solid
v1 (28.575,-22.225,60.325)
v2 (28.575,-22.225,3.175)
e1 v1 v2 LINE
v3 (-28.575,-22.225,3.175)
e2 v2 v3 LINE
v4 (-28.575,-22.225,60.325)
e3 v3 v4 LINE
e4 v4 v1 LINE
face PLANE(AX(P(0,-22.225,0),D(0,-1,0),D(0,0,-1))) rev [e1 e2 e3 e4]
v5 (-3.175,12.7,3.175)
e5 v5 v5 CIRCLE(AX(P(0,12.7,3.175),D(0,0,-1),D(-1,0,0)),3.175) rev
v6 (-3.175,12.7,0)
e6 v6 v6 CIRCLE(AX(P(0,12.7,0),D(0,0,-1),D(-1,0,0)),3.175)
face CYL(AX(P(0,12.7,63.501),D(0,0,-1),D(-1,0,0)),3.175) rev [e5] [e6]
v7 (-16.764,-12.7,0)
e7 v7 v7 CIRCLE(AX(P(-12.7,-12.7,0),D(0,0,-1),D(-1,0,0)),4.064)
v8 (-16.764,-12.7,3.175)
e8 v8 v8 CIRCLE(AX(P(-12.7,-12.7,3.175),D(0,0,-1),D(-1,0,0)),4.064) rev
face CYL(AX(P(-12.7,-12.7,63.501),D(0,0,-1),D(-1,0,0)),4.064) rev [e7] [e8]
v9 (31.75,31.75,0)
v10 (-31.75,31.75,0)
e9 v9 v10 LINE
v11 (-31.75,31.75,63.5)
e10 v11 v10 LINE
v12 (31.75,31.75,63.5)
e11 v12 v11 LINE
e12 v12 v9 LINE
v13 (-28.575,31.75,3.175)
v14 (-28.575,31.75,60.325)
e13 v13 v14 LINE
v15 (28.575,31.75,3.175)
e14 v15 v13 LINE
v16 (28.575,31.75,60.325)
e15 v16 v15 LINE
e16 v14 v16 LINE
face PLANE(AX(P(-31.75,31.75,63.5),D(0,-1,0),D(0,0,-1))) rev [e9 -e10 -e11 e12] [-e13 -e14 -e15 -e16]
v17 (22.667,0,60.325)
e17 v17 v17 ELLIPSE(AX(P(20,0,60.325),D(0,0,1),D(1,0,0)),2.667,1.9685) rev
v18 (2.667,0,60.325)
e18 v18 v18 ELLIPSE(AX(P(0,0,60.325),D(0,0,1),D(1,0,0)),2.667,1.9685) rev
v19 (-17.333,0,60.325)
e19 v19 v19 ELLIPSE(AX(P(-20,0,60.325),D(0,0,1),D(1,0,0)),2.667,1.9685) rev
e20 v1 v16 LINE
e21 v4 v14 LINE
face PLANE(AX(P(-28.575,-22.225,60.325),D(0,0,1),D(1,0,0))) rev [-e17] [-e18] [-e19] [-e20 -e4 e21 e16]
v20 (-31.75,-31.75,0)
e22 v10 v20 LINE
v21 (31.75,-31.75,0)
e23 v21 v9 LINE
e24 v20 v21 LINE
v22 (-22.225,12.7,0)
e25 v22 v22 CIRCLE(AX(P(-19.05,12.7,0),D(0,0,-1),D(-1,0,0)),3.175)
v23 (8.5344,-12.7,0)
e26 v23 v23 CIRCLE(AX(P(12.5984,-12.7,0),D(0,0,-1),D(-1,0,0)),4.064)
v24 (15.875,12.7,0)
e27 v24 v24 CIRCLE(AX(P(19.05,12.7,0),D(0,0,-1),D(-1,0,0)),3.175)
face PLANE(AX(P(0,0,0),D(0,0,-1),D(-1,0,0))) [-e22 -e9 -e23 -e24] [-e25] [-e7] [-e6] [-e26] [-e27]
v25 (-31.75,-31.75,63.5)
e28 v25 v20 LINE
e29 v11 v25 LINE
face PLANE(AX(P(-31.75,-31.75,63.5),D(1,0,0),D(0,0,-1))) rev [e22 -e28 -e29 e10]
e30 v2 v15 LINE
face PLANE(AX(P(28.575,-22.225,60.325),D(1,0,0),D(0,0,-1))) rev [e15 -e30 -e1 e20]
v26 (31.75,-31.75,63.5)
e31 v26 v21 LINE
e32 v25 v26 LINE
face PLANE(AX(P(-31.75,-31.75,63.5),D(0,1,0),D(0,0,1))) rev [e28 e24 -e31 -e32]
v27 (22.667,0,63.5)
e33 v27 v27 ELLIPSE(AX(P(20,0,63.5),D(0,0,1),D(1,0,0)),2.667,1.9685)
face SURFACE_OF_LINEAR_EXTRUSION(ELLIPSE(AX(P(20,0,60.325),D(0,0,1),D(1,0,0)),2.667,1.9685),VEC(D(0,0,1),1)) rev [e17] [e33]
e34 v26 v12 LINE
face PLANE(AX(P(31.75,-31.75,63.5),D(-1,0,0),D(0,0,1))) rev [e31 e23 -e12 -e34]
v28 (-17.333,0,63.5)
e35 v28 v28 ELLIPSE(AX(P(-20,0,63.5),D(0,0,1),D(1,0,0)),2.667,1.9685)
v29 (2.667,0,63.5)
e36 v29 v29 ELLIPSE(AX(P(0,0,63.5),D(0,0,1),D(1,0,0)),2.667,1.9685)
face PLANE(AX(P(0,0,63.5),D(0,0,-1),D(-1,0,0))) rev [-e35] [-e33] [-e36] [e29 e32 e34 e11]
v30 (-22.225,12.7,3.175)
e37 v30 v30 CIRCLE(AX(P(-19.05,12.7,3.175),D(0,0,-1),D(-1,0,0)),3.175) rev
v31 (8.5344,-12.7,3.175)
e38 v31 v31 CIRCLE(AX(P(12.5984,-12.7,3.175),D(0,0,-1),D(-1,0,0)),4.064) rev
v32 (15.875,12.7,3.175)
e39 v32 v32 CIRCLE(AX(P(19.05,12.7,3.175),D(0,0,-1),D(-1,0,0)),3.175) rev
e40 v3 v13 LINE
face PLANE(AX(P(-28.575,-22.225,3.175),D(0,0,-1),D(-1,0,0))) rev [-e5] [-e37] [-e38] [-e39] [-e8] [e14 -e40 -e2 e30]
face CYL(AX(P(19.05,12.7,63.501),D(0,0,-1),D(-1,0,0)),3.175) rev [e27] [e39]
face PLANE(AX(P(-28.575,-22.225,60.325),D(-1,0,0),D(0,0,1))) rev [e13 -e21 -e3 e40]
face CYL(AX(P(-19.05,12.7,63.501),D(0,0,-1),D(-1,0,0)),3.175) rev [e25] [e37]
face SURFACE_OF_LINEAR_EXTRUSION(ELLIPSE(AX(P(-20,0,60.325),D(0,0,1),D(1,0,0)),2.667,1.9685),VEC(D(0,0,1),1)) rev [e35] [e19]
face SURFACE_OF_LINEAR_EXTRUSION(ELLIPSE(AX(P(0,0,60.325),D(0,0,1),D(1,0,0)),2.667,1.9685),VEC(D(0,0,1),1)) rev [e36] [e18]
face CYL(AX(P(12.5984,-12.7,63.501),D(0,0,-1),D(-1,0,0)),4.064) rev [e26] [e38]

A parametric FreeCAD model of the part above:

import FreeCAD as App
import Part
import Sketcher
from FreeCAD import Vector
Q = App.Units.Quantity

doc = App.newDocument("Part")
body = doc.addObject("PartDesign::Body", "Body")

# Sketch on XY plane
sketch1 = body.newObject("Sketcher::SketchObject", "Sketch")
sketch1.AttachmentSupport = (doc.getObject("XY_Plane"), [""])
sketch1.MapMode = "FlatFace"
sketch1.addGeometry(Part.LineSegment(Vector(-32, 32, 0), Vector(-32, -32, 0)), False)
sketch1.addGeometry(Part.LineSegment(Vector(-32, -32, 0), Vector(32, -32, 0)), False)
sketch1.addGeometry(Part.LineSegment(Vector(32, -32, 0), Vector(32, 32, 0)), False)
sketch1.addGeometry(Part.LineSegment(Vector(32, 32, 0), Vector(-32, 32, 0)), False)
sketch1.addConstraint(Sketcher.Constraint("Coincident", 0, 2, 1, 1))
sketch1.addConstraint(Sketcher.Constraint("Coincident", 1, 2, 2, 1))
sketch1.addConstraint(Sketcher.Constraint("Coincident", 2, 2, 3, 1))
sketch1.addConstraint(Sketcher.Constraint("Coincident", 3, 2, 0, 1))
sketch1.addConstraint(Sketcher.Constraint("Vertical", 0))
sketch1.addConstraint(Sketcher.Constraint("Horizontal", 1))
sketch1.addConstraint(Sketcher.Constraint("Vertical", 2))
sketch1.addConstraint(Sketcher.Constraint("Horizontal", 3))
sketch1.addConstraint(Sketcher.Constraint("Symmetric", 0, 2, 2, 2, -1, 1))
sketch1.addConstraint(Sketcher.Constraint("Equal", 3, 0))
sketch1.addConstraint(Sketcher.Constraint("DistanceX", 1, 1, 1, 2, Q("2.5 in")))
pad1 = body.newObject("PartDesign::Pad", "Pad")
pad1.Profile = sketch1
pad1.Length = Q("2.5 in")

# Sketch on XY plane
sketch2 = body.newObject("Sketcher::SketchObject", "Sketch001")
sketch2.AttachmentSupport = (doc.getObject("XY_Plane"), [""])
sketch2.MapMode = "FlatFace"
sketch2.AttachmentOffset = App.Placement(Vector(0, 0, 2.5 * 25.4), App.Rotation())
sketch2.addGeometry(Part.Ellipse(Vector(2.667, 0, 0), Vector(0, 1.9685, 0), Vector(0, 0, 0)), False)
sketch2.addGeometry(Part.Ellipse(Vector(22.667, 0, 0), Vector(20, 1.9685, 0), Vector(20, 0, 0)), False)
sketch2.addGeometry(Part.Ellipse(Vector(-17.333, 0, 0), Vector(-20, 1.9685, 0), Vector(-20, 0, 0)), False)
sketch2.addConstraint(Sketcher.Constraint("Block", 0))
sketch2.addConstraint(Sketcher.Constraint("Block", 1))
sketch2.addConstraint(Sketcher.Constraint("Block", 2))
pocket1 = body.newObject("PartDesign::Pocket", "Pocket")
pocket1.Profile = sketch2
pocket1.Length = Q("0.125 in")

# Sketch on XZ plane
sketch3 = body.newObject("Sketcher::SketchObject", "Sketch002")
sketch3.AttachmentSupport = (doc.getObject("XZ_Plane"), [""])
sketch3.MapMode = "FlatFace"
sketch3.AttachmentOffset = App.Placement(Vector(0, 0, -1.25 * 25.4), App.Rotation())
sketch3.addGeometry(Part.LineSegment(Vector(-29, 3, 0), Vector(-29, 60, 0)), False)
sketch3.addGeometry(Part.LineSegment(Vector(-29, 60, 0), Vector(29, 60, 0)), False)
sketch3.addGeometry(Part.LineSegment(Vector(29, 60, 0), Vector(29, 3, 0)), False)
sketch3.addGeometry(Part.LineSegment(Vector(29, 3, 0), Vector(-29, 3, 0)), False)
sketch3.addConstraint(Sketcher.Constraint("Coincident", 0, 2, 1, 1))
sketch3.addConstraint(Sketcher.Constraint("Coincident", 1, 2, 2, 1))
sketch3.addConstraint(Sketcher.Constraint("Coincident", 2, 2, 3, 1))
sketch3.addConstraint(Sketcher.Constraint("Coincident", 3, 2, 0, 1))
sketch3.addConstraint(Sketcher.Constraint("Vertical", 0))
sketch3.addConstraint(Sketcher.Constraint("Horizontal", 1))
sketch3.addConstraint(Sketcher.Constraint("Vertical", 2))
sketch3.addConstraint(Sketcher.Constraint("Horizontal", 3))
sketch3.addConstraint(Sketcher.Constraint("Equal", 3, 0))
sketch3.addConstraint(Sketcher.Constraint("DistanceX", 1, 1, 1, 2, Q("2.25 in")))
sketch3.addConstraint(Sketcher.Constraint("DistanceX", 0, 2, -1, 1, Q("1.125 in")))
sketch3.addConstraint(Sketcher.Constraint("DistanceY", -1, 1, 0, 2, Q("2.375 in")))
pocket2 = body.newObject("PartDesign::Pocket", "Pocket001")
pocket2.Profile = sketch3
pocket2.Length = Q("2.125 in")
pocket2.Reversed = True

# Sketch on XY plane
sketch4 = body.newObject("Sketcher::SketchObject", "Sketch003")
sketch4.AttachmentSupport = (doc.getObject("XY_Plane"), [""])
sketch4.MapMode = "FlatFace"
sketch4.addGeometry(Part.Circle(Vector(12.6, -12.7, 0), Vector(0, 0, 1), 4.1), False)
sketch4.addConstraint(Sketcher.Constraint("Diameter", 0, Q("0.32 in")))
sketch4.addConstraint(Sketcher.Constraint("DistanceY", 0, 3, -1, 1, Q("0.5 in")))
sketch4.addConstraint(Sketcher.Constraint("DistanceX", -1, 1, 0, 3, Q("0.496 in")))
pocket3 = body.newObject("PartDesign::Pocket", "Pocket002")
pocket3.Profile = sketch4
pocket3.Type = "UpToFirst"
pocket3.Reversed = True

# Sketch on XY plane
sketch5 = body.newObject("Sketcher::SketchObject", "Sketch004")
sketch5.AttachmentSupport = (doc.getObject("XY_Plane"), [""])
sketch5.MapMode = "FlatFace"
sketch5.addGeometry(Part.Circle(Vector(-12.7, -12.7, 0), Vector(0, 0, 1), 4.1), False)
sketch5.addConstraint(Sketcher.Constraint("Diameter", 0, Q("0.32 in")))
sketch5.addConstraint(Sketcher.Constraint("DistanceX", 0, 3, -1, 1, Q("0.5 in")))
sketch5.addConstraint(Sketcher.Constraint("DistanceY", 0, 3, -1, 1, Q("0.5 in")))
pocket4 = body.newObject("PartDesign::Pocket", "Pocket003")
pocket4.Profile = sketch5
pocket4.Type = "UpToFirst"
pocket4.Reversed = True

# Sketch on XY plane
sketch6 = body.newObject("Sketcher::SketchObject", "Sketch005")
sketch6.AttachmentSupport = (doc.getObject("XY_Plane"), [""])
sketch6.MapMode = "FlatFace"
sketch6.addGeometry(Part.Circle(Vector(19.1, 12.7, 0), Vector(0, 0, 1), 3.2), False)
sketch6.addConstraint(Sketcher.Constraint("Diameter", 0, Q("0.25 in")))
sketch6.addConstraint(Sketcher.Constraint("DistanceY", -1, 1, 0, 3, Q("0.5 in")))
sketch6.addConstraint(Sketcher.Constraint("DistanceX", -1, 1, 0, 3, Q("0.75 in")))
pocket5 = body.newObject("PartDesign::Pocket", "Pocket004")
pocket5.Profile = sketch6
pocket5.Type = "UpToFirst"
pocket5.Reversed = True

# Sketch on XY plane
sketch7 = body.newObject("Sketcher::SketchObject", "Sketch006")
sketch7.AttachmentSupport = (doc.getObject("XY_Plane"), [""])
sketch7.MapMode = "FlatFace"
sketch7.addGeometry(Part.Circle(Vector(0, 12.7, 0), Vector(0, 0, 1), 3.2), False)
sketch7.addConstraint(Sketcher.Constraint("PointOnObject", 0, 3, -2))
sketch7.addConstraint(Sketcher.Constraint("Diameter", 0, Q("0.25 in")))
sketch7.addConstraint(Sketcher.Constraint("DistanceY", -1, 1, 0, 3, Q("0.5 in")))
pocket6 = body.newObject("PartDesign::Pocket", "Pocket005")
pocket6.Profile = sketch7
pocket6.Type = "UpToFirst"
pocket6.Reversed = True

# Sketch on XY plane
sketch8 = body.newObject("Sketcher::SketchObject", "Sketch007")
sketch8.AttachmentSupport = (doc.getObject("XY_Plane"), [""])
sketch8.MapMode = "FlatFace"
sketch8.addGeometry(Part.Circle(Vector(-19.1, 12.7, 0), Vector(0, 0, 1), 3.2), False)
sketch8.addConstraint(Sketcher.Constraint("Diameter", 0, Q("0.25 in")))
sketch8.addConstraint(Sketcher.Constraint("DistanceY", -1, 1, 0, 3, Q("0.5 in")))
sketch8.addConstraint(Sketcher.Constraint("DistanceX", 0, 3, -1, 1, Q("0.75 in")))
pocket7 = body.newObject("PartDesign::Pocket", "Pocket006")
pocket7.Profile = sketch8
pocket7.Type = "UpToFirst"
pocket7.Reversed = True

doc.recompute()
